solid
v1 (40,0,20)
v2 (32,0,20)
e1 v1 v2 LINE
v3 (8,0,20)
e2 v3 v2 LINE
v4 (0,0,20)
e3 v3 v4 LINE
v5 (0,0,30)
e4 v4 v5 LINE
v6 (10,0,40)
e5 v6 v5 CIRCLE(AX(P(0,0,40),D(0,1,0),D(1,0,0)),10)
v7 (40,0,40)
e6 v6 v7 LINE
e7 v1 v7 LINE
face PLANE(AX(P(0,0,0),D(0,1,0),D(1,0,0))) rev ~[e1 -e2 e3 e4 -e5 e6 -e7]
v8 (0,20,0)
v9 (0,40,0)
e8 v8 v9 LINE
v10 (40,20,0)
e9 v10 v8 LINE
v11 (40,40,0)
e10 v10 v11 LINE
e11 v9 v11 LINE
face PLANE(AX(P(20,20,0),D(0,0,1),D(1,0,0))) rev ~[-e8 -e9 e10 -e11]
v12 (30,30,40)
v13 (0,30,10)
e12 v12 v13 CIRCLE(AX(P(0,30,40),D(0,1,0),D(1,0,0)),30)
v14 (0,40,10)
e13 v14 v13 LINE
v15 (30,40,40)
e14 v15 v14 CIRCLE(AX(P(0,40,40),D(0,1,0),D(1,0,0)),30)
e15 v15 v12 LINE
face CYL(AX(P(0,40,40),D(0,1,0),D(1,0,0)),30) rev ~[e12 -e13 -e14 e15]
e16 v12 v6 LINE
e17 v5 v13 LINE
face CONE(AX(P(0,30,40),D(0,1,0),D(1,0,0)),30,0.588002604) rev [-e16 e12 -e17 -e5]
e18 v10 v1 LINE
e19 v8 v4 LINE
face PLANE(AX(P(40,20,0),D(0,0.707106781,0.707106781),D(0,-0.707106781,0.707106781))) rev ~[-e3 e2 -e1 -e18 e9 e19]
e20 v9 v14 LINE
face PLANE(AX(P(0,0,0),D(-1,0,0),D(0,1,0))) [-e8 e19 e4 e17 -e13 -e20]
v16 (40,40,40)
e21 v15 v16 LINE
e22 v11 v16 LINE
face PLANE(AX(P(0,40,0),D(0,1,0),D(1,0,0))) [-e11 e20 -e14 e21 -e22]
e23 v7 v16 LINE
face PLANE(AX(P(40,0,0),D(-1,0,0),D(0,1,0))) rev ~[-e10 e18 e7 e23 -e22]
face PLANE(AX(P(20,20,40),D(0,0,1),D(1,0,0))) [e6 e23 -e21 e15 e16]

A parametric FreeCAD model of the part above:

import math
import FreeCAD as App
import Part
import Sketcher

doc = App.newDocument("Part")
params = doc.addObject("Spreadsheet::Sheet", "Params")
for row, (alias, value) in enumerate([
    ("sketch1_width", "40 mm"),
    ("pad1_length", "40 mm"),
    ("sketch2_radius", "10 mm"),
    ("pocket1_length", "40 mm"),
    ("sketch3_width", "20 mm"),
    ("pocket2_length", "40 mm"),
    ("sketch4_radius", "10 mm"),
    ("sketch4_radius2", "30 mm"),
    ("pocket3_length", "10 mm"),
    ("pad2_length", "28 mm"),
    ("sketch6_radius", "30 mm"),
    ("pocket4_length", "10 mm"),
    ("sketch7_width", "40 mm"),
    ("sketch7_height", "20 mm"),
    ("pocket5_length", "10 mm"),
    ("sketch8_width", "40 mm"),
    ("pocket6_length", "10 mm"),
    ("sketch9_width", "6 mm"),
    ("pocket7_length", "10 mm"),
    ("sketch10_width", "40 mm"),
    ("pocket8_length", "10 mm"),
    ("sketch11_width", "40 mm"),
    ("pocket9_length", "10 mm"),
    ("pocket10_length", "59 mm"),
    ("sketch13_radius", "10 mm"),
    ("pocket11_length", "59 mm"),
    ("sketch14_width", "20 mm"),
    ("sketch14_height", "30 mm"),
    ("groove_angle", "360 deg"),
], start=1):
    params.set(f"A{row}", alias)
    params.set(f"B{row}", "=" + value)
    params.setAlias(f"B{row}", alias)

body = doc.addObject("PartDesign::Body", "Body")
body.AllowCompound = True

sketch1 = body.newObject("Sketcher::SketchObject", "Sketch")
sketch1.AttachmentSupport = (doc.getObject("XY_Plane"), [""])
sketch1.MapMode = "FlatFace"
sketch1.addGeometry(Part.LineSegment(App.Vector(0, 40, 0), App.Vector(0, 0, 0)), False)
sketch1.addGeometry(Part.LineSegment(App.Vector(0, 0, 0), App.Vector(40, 0, 0)), False)
sketch1.addGeometry(Part.LineSegment(App.Vector(40, 0, 0), App.Vector(40, 40, 0)), False)
sketch1.addGeometry(Part.LineSegment(App.Vector(40, 40, 0), App.Vector(0, 40, 0)), False)
sketch1.addConstraint(Sketcher.Constraint("Coincident", 0, 2, 1, 1))
sketch1.addConstraint(Sketcher.Constraint("Coincident", 1, 2, 2, 1))
sketch1.addConstraint(Sketcher.Constraint("Coincident", 2, 2, 3, 1))
sketch1.addConstraint(Sketcher.Constraint("Coincident", 3, 2, 0, 1))
sketch1.addConstraint(Sketcher.Constraint("Vertical", 0))
sketch1.addConstraint(Sketcher.Constraint("Horizontal", 1))
sketch1.addConstraint(Sketcher.Constraint("Vertical", 2))
sketch1.addConstraint(Sketcher.Constraint("Horizontal", 3))
sketch1.addConstraint(Sketcher.Constraint("Coincident", 0, 2, -1, 1))
sketch1.addConstraint(Sketcher.Constraint("Equal", 3, 0))
sketch1.addConstraint(Sketcher.Constraint("DistanceX", 1, 1, 1, 2, 40.0))
sketch1.setExpression("Constraints[10]", "Params.sketch1_width")
pad1 = body.newObject("PartDesign::Pad", "Pad")
pad1.Profile = sketch1
pad1.setExpression("Length", "Params.pad1_length")

sketch2 = body.newObject("Sketcher::SketchObject", "Sketch001")
sketch2.AttachmentSupport = (doc.getObject("XZ_Plane"), [""])
sketch2.MapMode = "FlatFace"
sketch2.AttachmentOffset = App.Placement(App.Vector(0, 0, -40), App.Rotation())
sketch2.addGeometry(Part.LineSegment(App.Vector(0, 30, 0), App.Vector(0, 40, 0)), False)
sketch2.addGeometry(Part.LineSegment(App.Vector(0, 40, 0), App.Vector(10, 40, 0)), False)
sketch2.addGeometry(Part.ArcOfCircle(Part.Circle(App.Vector(0, 40, 0), App.Vector(0, 0, 1), 10), math.radians(-90), math.radians(0)), False)
sketch2.addConstraint(Sketcher.Constraint("Coincident", 0, 2, 1, 1))
sketch2.addConstraint(Sketcher.Constraint("Coincident", 1, 2, 2, 2))
sketch2.addConstraint(Sketcher.Constraint("Coincident", 2, 1, 0, 1))
sketch2.addConstraint(Sketcher.Constraint("Vertical", 0))
sketch2.addConstraint(Sketcher.Constraint("Horizontal", 1))
sketch2.addConstraint(Sketcher.Constraint("Coincident", 0, 2, 2, 3))
sketch2.addConstraint(Sketcher.Constraint("PointOnObject", 2, 3, -2))
sketch2.addConstraint(Sketcher.Constraint("Radius", 2, 10.0))
sketch2.addConstraint(Sketcher.Constraint("DistanceY", -1, 1, 2, 3, 40.0))
sketch2.setExpression("Constraints[7]", "Params.sketch2_radius")
pocket1 = body.newObject("PartDesign::Pocket", "Pocket")
pocket1.Profile = sketch2
pocket1.setExpression("Length", "Params.pocket1_length")
pocket1.Reversed = True

sketch3 = body.newObject("Sketcher::SketchObject", "Sketch002")
sketch3.AttachmentSupport = (doc.getObject("YZ_Plane"), [""])
sketch3.MapMode = "FlatFace"
sketch3.AttachmentOffset = App.Placement(App.Vector(0, 0, 40), App.Rotation())
sketch3.addGeometry(Part.LineSegment(App.Vector(20, 0, 0), App.Vector(0, 20, 0)), False)
sketch3.addGeometry(Part.LineSegment(App.Vector(0, 20, 0), App.Vector(0, 0, 0)), False)
sketch3.addGeometry(Part.LineSegment(App.Vector(0, 0, 0), App.Vector(20, 0, 0)), False)
sketch3.addConstraint(Sketcher.Constraint("Coincident", 0, 2, 1, 1))
sketch3.addConstraint(Sketcher.Constraint("Coincident", 1, 2, 2, 1))
sketch3.addConstraint(Sketcher.Constraint("Coincident", 2, 2, 0, 1))
sketch3.addConstraint(Sketcher.Constraint("Vertical", 1))
sketch3.addConstraint(Sketcher.Constraint("Horizontal", 2))
sketch3.addConstraint(Sketcher.Constraint("Coincident", 1, 2, -1, 1))
sketch3.addConstraint(Sketcher.Constraint("Equal", 2, 1))
sketch3.addConstraint(Sketcher.Constraint("DistanceX", 2, 1, 2, 2, 20.0))
sketch3.setExpression("Constraints[7]", "Params.sketch3_width")
pocket2 = body.newObject("PartDesign::Pocket", "Pocket001")
pocket2.Profile = sketch3
pocket2.setExpression("Length", "Params.pocket2_length")

sketch4 = body.newObject("Sketcher::SketchObject", "Sketch003")
sketch4.AttachmentSupport = (doc.getObject("XZ_Plane"), [""])
sketch4.MapMode = "FlatFace"
sketch4.AttachmentOffset = App.Placement(App.Vector(0, 0, -40), App.Rotation())
sketch4.addGeometry(Part.LineSegment(App.Vector(0, 10, 0), App.Vector(0, 30, 0)), False)
sketch4.addGeometry(Part.ArcOfCircle(Part.Circle(App.Vector(0, 40, 0), App.Vector(0, 0, 1), 10), math.radians(-90), math.radians(0)), False)
sketch4.addGeometry(Part.LineSegment(App.Vector(10, 40, 0), App.Vector(30, 40, 0)), False)
sketch4.addGeometry(Part.ArcOfCircle(Part.Circle(App.Vector(0, 40, 0), App.Vector(0, 0, 1), 30), math.radians(-90), math.radians(0)), False)
sketch4.addConstraint(Sketcher.Constraint("Coincident", 0, 2, 1, 1))
sketch4.addConstraint(Sketcher.Constraint("Coincident", 1, 2, 2, 1))
sketch4.addConstraint(Sketcher.Constraint("Coincident", 2, 2, 3, 2))
sketch4.addConstraint(Sketcher.Constraint("Coincident", 3, 1, 0, 1))
sketch4.addConstraint(Sketcher.Constraint("Vertical", 0))
sketch4.addConstraint(Sketcher.Constraint("Horizontal", 2))
sketch4.addConstraint(Sketcher.Constraint("Coincident", 3, 3, 1, 3))
sketch4.addConstraint(Sketcher.Constraint("PointOnObject", 1, 3, -2))
sketch4.addConstraint(Sketcher.Constraint("PointOnObject", 0, 2, -2))
sketch4.addConstraint(Sketcher.Constraint("Horizontal", 3, 3, 1, 2))
sketch4.addConstraint(Sketcher.Constraint("Radius", 1, 10.0))
sketch4.addConstraint(Sketcher.Constraint("Radius", 3, 30.0))
sketch4.addConstraint(Sketcher.Constraint("DistanceY", -1, 1, 1, 3, 40.0))
sketch4.setExpression("Constraints[10]", "Params.sketch4_radius")
sketch4.setExpression("Constraints[11]", "Params.sketch4_radius2")
pocket3 = body.newObject("PartDesign::Pocket", "Pocket002")
pocket3.Profile = sketch4
pocket3.setExpression("Length", "Params.pocket3_length")
pocket3.Reversed = True

sketch5 = body.newObject("Sketcher::SketchObject", "Sketch004")
sketch5.Placement = App.Placement(App.Vector(-13.333333, 6.666667, 13.333333), App.Rotation(App.Vector(-0.745355992, -0.298142397, -0.596284794), App.Vector(0, 0.894427191, -0.447213595), App.Vector(0.666666667, -0.333333333, -0.666666667), "ZXY"))
sketch5.addGeometry(Part.LineSegment(App.Vector(-18, -13, 0), App.Vector(-18, 31, 0)), False)
sketch5.addGeometry(Part.LineSegment(App.Vector(-18, 31, 0), App.Vector(-58, 18, 0)), False)
sketch5.addGeometry(Part.LineSegment(App.Vector(-58, 18, 0), App.Vector(-31, -18, 0)), False)
sketch5.addGeometry(Part.LineSegment(App.Vector(-31, -18, 0), App.Vector(-18, -13, 0)), False)
sketch5.addConstraint(Sketcher.Constraint("Coincident", 0, 2, 1, 1))
sketch5.addConstraint(Sketcher.Constraint("Coincident", 1, 2, 2, 1))
sketch5.addConstraint(Sketcher.Constraint("Coincident", 2, 2, 3, 1))
sketch5.addConstraint(Sketcher.Constraint("Coincident", 3, 2, 0, 1))
sketch5.addConstraint(Sketcher.Constraint("Vertical", 0))
sketch5.addConstraint(Sketcher.Constraint("Parallel", 1, 3))
sketch5.addConstraint(Sketcher.Constraint("DistanceY", 0, 1, 0, 2, 44.72136))
sketch5.addConstraint(Sketcher.Constraint("Distance", 2, 44.72136))
sketch5.addConstraint(Sketcher.Constraint("DistanceY", -1, 1, 0, 2, 31.304952))
sketch5.addConstraint(Sketcher.Constraint("DistanceX", 2, 2, -1, 1, 31.304952))
sketch5.addConstraint(Sketcher.Constraint("DistanceY", 3, 2, 1, 2, 31.304952))
sketch5.addConstraint(Sketcher.Constraint("Distance", 1, 42.426407))
pad2 = body.newObject("PartDesign::Pad", "Pad001")
pad2.Profile = sketch5
pad2.setExpression("Length", "Params.pad2_length")

sketch6 = body.newObject("Sketcher::SketchObject", "Sketch005")
sketch6.AttachmentSupport = (doc.getObject("XZ_Plane"), [""])
sketch6.MapMode = "FlatFace"
sketch6.AttachmentOffset = App.Placement(App.Vector(0, 0, -40), App.Rotation())
sketch6.addGeometry(Part.LineSegment(App.Vector(0, 10, 0), App.Vector(0, 40, 0)), False)
sketch6.addGeometry(Part.LineSegment(App.Vector(0, 40, 0), App.Vector(30, 40, 0)), False)
sketch6.addGeometry(Part.ArcOfCircle(Part.Circle(App.Vector(0, 40, 0), App.Vector(0, 0, 1), 30), math.radians(-90), math.radians(0)), False)
sketch6.addConstraint(Sketcher.Constraint("Coincident", 0, 2, 1, 1))
sketch6.addConstraint(Sketcher.Constraint("Coincident", 1, 2, 2, 2))
sketch6.addConstraint(Sketcher.Constraint("Coincident", 2, 1, 0, 1))
sketch6.addConstraint(Sketcher.Constraint("Vertical", 0))
sketch6.addConstraint(Sketcher.Constraint("Horizontal", 1))
sketch6.addConstraint(Sketcher.Constraint("Coincident", 0, 2, 2, 3))
sketch6.addConstraint(Sketcher.Constraint("PointOnObject", 2, 3, -2))
sketch6.addConstraint(Sketcher.Constraint("Radius", 2, 30.0))
sketch6.addConstraint(Sketcher.Constraint("DistanceY", -1, 1, 2, 3, 40.0))
sketch6.setExpression("Constraints[7]", "Params.sketch6_radius")
pocket4 = body.newObject("PartDesign::Pocket", "Pocket003")
pocket4.Profile = sketch6
pocket4.setExpression("Length", "Params.pocket4_length")
pocket4.Reversed = True

sketch7 = body.newObject("Sketcher::SketchObject", "Sketch006")
sketch7.AttachmentSupport = (doc.getObject("XY_Plane"), [""])
sketch7.MapMode = "FlatFace"
sketch7.addGeometry(Part.LineSegment(App.Vector(40, 40, 0), App.Vector(40, 20, 0)), False)
sketch7.addGeometry(Part.LineSegment(App.Vector(40, 20, 0), App.Vector(0, 20, 0)), False)
sketch7.addGeometry(Part.LineSegment(App.Vector(0, 20, 0), App.Vector(0, 40, 0)), False)
sketch7.addGeometry(Part.LineSegment(App.Vector(0, 40, 0), App.Vector(40, 40, 0)), False)
sketch7.addConstraint(Sketcher.Constraint("Coincident", 0, 2, 1, 1))
sketch7.addConstraint(Sketcher.Constraint("Coincident", 1, 2, 2, 1))
sketch7.addConstraint(Sketcher.Constraint("Coincident", 2, 2, 3, 1))
sketch7.addConstraint(Sketcher.Constraint("Coincident", 3, 2, 0, 1))
sketch7.addConstraint(Sketcher.Constraint("Vertical", 0))
sketch7.addConstraint(Sketcher.Constraint("Horizontal", 1))
sketch7.addConstraint(Sketcher.Constraint("Vertical", 2))
sketch7.addConstraint(Sketcher.Constraint("Horizontal", 3))
sketch7.addConstraint(Sketcher.Constraint("PointOnObject", 1, 2, -2))
sketch7.addConstraint(Sketcher.Constraint("DistanceX", 1, 2, 1, 1, 40.0))
sketch7.addConstraint(Sketcher.Constraint("DistanceY", 0, 2, 0, 1, 20.0))
sketch7.addConstraint(Sketcher.Constraint("DistanceY", -1, 1, 0, 2, 20.0))
sketch7.setExpression("Constraints[9]", "Params.sketch7_width")
sketch7.setExpression("Constraints[10]", "Params.sketch7_height")
pocket5 = body.newObject("PartDesign::Pocket", "Pocket004")
pocket5.Profile = sketch7
pocket5.setExpression("Length", "Params.pocket5_length")

sketch8 = body.newObject("Sketcher::SketchObject", "Sketch007")
sketch8.Placement = App.Placement(App.Vector(0, 10, 10), App.Rotation(App.Vector(1, 0, 0), App.Vector(0, -0.707106781, 0.707106781), App.Vector(0, -0.707106781, -0.707106781), "ZXY"))
sketch8.addGeometry(Part.LineSegment(App.Vector(0, 14, 0), App.Vector(0, -14, 0)), False)
sketch8.addGeometry(Part.LineSegment(App.Vector(0, -14, 0), App.Vector(40, -14, 0)), False)
sketch8.addGeometry(Part.LineSegment(App.Vector(40, -14, 0), App.Vector(40, 14, 0)), False)
sketch8.addGeometry(Part.LineSegment(App.Vector(40, 14, 0), App.Vector(0, 14, 0)), False)
sketch8.addConstraint(Sketcher.Constraint("Coincident", 0, 2, 1, 1))
sketch8.addConstraint(Sketcher.Constraint("Coincident", 1, 2, 2, 1))
sketch8.addConstraint(Sketcher.Constraint("Coincident", 2, 2, 3, 1))
sketch8.addConstraint(Sketcher.Constraint("Coincident", 3, 2, 0, 1))
sketch8.addConstraint(Sketcher.Constraint("Vertical", 0))
sketch8.addConstraint(Sketcher.Constraint("Horizontal", 1))
sketch8.addConstraint(Sketcher.Constraint("Vertical", 2))
sketch8.addConstraint(Sketcher.Constraint("Horizontal", 3))
sketch8.addConstraint(Sketcher.Constraint("Symmetric", 0, 2, 3, 2, -1, 1))
sketch8.addConstraint(Sketcher.Constraint("DistanceX", 1, 1, 1, 2, 40.0))
sketch8.addConstraint(Sketcher.Constraint("DistanceY", 0, 2, 0, 1, 28.284271))
sketch8.setExpression("Constraints[9]", "Params.sketch8_width")
pocket6 = body.newObject("PartDesign::Pocket", "Pocket005")
pocket6.Profile = sketch8
pocket6.setExpression("Length", "Params.pocket6_length")
pocket6.Reversed = True

sketch9 = body.newObject("Sketcher::SketchObject", "Sketch008")
sketch9.Placement = App.Placement(App.Vector(0, 10, -10), App.Rotation(App.Vector(1, 0, 0), App.Vector(0, 0.707106781, 0.707106781), App.Vector(0, -0.707106781, 0.707106781), "ZXY"))
sketch9.addGeometry(Part.LineSegment(App.Vector(22, 14.1, 0), App.Vector(16, 14.1, 0)), False)
sketch9.addGeometry(Part.LineSegment(App.Vector(16, 14.1, 0), App.Vector(18.7, 11, 0)), False)
sketch9.addGeometry(Part.LineSegment(App.Vector(18.7, 11, 0), App.Vector(22, 14.1, 0)), False)
sketch9.addConstraint(Sketcher.Constraint("Coincident", 0, 2, 1, 1))
sketch9.addConstraint(Sketcher.Constraint("Coincident", 1, 2, 2, 1))
sketch9.addConstraint(Sketcher.Constraint("Coincident", 2, 2, 0, 1))
sketch9.addConstraint(Sketcher.Constraint("Horizontal", 0))
sketch9.addConstraint(Sketcher.Constraint("DistanceX", 0, 2, 0, 1, 6.0))
sketch9.addConstraint(Sketcher.Constraint("DistanceX", -1, 1, 0, 2, 16.0))
sketch9.addConstraint(Sketcher.Constraint("Distance", 1, 4.121608))
sketch9.addConstraint(Sketcher.Constraint("Distance", 2, 4.581228))
sketch9.addConstraint(Sketcher.Constraint("DistanceY", -1, 1, 1, 2, 10.999439))
sketch9.setExpression("Constraints[4]", "Params.sketch9_width")
pocket7 = body.newObject("PartDesign::Pocket", "Pocket006")
pocket7.Profile = sketch9
pocket7.setExpression("Length", "Params.pocket7_length")

sketch10 = body.newObject("Sketcher::SketchObject", "Sketch009")
sketch10.AttachmentSupport = (doc.getObject("XZ_Plane"), [""])
sketch10.MapMode = "FlatFace"
sketch10.addGeometry(Part.LineSegment(App.Vector(0, 40, 0), App.Vector(0, 0, 0)), False)
sketch10.addGeometry(Part.LineSegment(App.Vector(0, 0, 0), App.Vector(40, 0, 0)), False)
sketch10.addGeometry(Part.LineSegment(App.Vector(40, 0, 0), App.Vector(40, 40, 0)), False)
sketch10.addGeometry(Part.LineSegment(App.Vector(40, 40, 0), App.Vector(0, 40, 0)), False)
sketch10.addConstraint(Sketcher.Constraint("Coincident", 0, 2, 1, 1))
sketch10.addConstraint(Sketcher.Constraint("Coincident", 1, 2, 2, 1))
sketch10.addConstraint(Sketcher.Constraint("Coincident", 2, 2, 3, 1))
sketch10.addConstraint(Sketcher.Constraint("Coincident", 3, 2, 0, 1))
sketch10.addConstraint(Sketcher.Constraint("Vertical", 0))
sketch10.addConstraint(Sketcher.Constraint("Horizontal", 1))
sketch10.addConstraint(Sketcher.Constraint("Vertical", 2))
sketch10.addConstraint(Sketcher.Constraint("Horizontal", 3))
sketch10.addConstraint(Sketcher.Constraint("Coincident", 0, 2, -1, 1))
sketch10.addConstraint(Sketcher.Constraint("Equal", 3, 0))
sketch10.addConstraint(Sketcher.Constraint("DistanceX", 1, 1, 1, 2, 40.0))
sketch10.setExpression("Constraints[10]", "Params.sketch10_width")
pocket8 = body.newObject("PartDesign::Pocket", "Pocket007")
pocket8.Profile = sketch10
pocket8.setExpression("Length", "Params.pocket8_length")
pocket8.Reversed = True

sketch11 = body.newObject("Sketcher::SketchObject", "Sketch010")
sketch11.AttachmentSupport = (doc.getObject("YZ_Plane"), [""])
sketch11.MapMode = "FlatFace"
sketch11.AttachmentOffset = App.Placement(App.Vector(0, 0, 40), App.Rotation())
sketch11.addGeometry(Part.LineSegment(App.Vector(40, 40, 0), App.Vector(0, 40, 0)), False)
sketch11.addGeometry(Part.LineSegment(App.Vector(0, 40, 0), App.Vector(0, 0, 0)), False)
sketch11.addGeometry(Part.LineSegment(App.Vector(0, 0, 0), App.Vector(40, 0, 0)), False)
sketch11.addGeometry(Part.LineSegment(App.Vector(40, 0, 0), App.Vector(40, 40, 0)), False)
sketch11.addConstraint(Sketcher.Constraint("Coincident", 0, 2, 1, 1))
sketch11.addConstraint(Sketcher.Constraint("Coincident", 1, 2, 2, 1))
sketch11.addConstraint(Sketcher.Constraint("Coincident", 2, 2, 3, 1))
sketch11.addConstraint(Sketcher.Constraint("Coincident", 3, 2, 0, 1))
sketch11.addConstraint(Sketcher.Constraint("Horizontal", 0))
sketch11.addConstraint(Sketcher.Constraint("Vertical", 1))
sketch11.addConstraint(Sketcher.Constraint("Horizontal", 2))
sketch11.addConstraint(Sketcher.Constraint("Vertical", 3))
sketch11.addConstraint(Sketcher.Constraint("Coincident", 1, 2, -1, 1))
sketch11.addConstraint(Sketcher.Constraint("Equal", 2, 1))
sketch11.addConstraint(Sketcher.Constraint("DistanceX", 0, 2, 0, 1, 40.0))
sketch11.setExpression("Constraints[10]", "Params.sketch11_width")
pocket9 = body.newObject("PartDesign::Pocket", "Pocket008")
pocket9.Profile = sketch11
pocket9.setExpression("Length", "Params.pocket9_length")
pocket9.Reversed = True

sketch12 = body.newObject("Sketcher::SketchObject", "Sketch011")
sketch12.Placement = App.Placement(App.Vector(-12.272727, 8.181818, 12.272727), App.Rotation(App.Vector(0.768706115, 0.354787438, 0.532181156), App.Vector(0, 0.832050294, -0.554700197), App.Vector(-0.639602149, 0.426401433, 0.639602149), "ZXY"))
sketch12.addGeometry(Part.LineSegment(App.Vector(16, 19, 0), App.Vector(16, -17, 0)), False)
sketch12.addGeometry(Part.LineSegment(App.Vector(16, -17, 0), App.Vector(29, -22, 0)), False)
sketch12.addGeometry(Part.LineSegment(App.Vector(29, -22, 0), App.Vector(55, 3, 0)), False)
sketch12.addGeometry(Part.LineSegment(App.Vector(55, 3, 0), App.Vector(16, 19, 0)), False)
sketch12.addConstraint(Sketcher.Constraint("Coincident", 0, 2, 1, 1))
sketch12.addConstraint(Sketcher.Constraint("Coincident", 1, 2, 2, 1))
sketch12.addConstraint(Sketcher.Constraint("Coincident", 2, 2, 3, 1))
sketch12.addConstraint(Sketcher.Constraint("Coincident", 3, 2, 0, 1))
sketch12.addConstraint(Sketcher.Constraint("Vertical", 0))
sketch12.addConstraint(Sketcher.Constraint("Parallel", 1, 3))
sketch12.addConstraint(Sketcher.Constraint("DistanceY", 1, 2, 0, 2, 5.547002))
sketch12.addConstraint(Sketcher.Constraint("DistanceY", -1, 1, 2, 2, 2.773501))
sketch12.addConstraint(Sketcher.Constraint("DistanceY", 0, 2, 0, 1, 36.055513))
sketch12.addConstraint(Sketcher.Constraint("DistanceY", 1, 2, 2, 2, 24.961509))
sketch12.addConstraint(Sketcher.Constraint("DistanceX", 0, 2, 2, 2, 39.026618))
sketch12.addConstraint(Sketcher.Constraint("DistanceX", -1, 1, 0, 2, 15.965435))
pocket10 = body.newObject("PartDesign::Pocket", "Pocket009")
pocket10.Profile = sketch12
pocket10.setExpression("Length", "Params.pocket10_length")
pocket10.Reversed = True

sketch13 = body.newObject("Sketcher::SketchObject", "Sketch012")
sketch13.AttachmentSupport = (doc.getObject("XZ_Plane"), [""])
sketch13.MapMode = "FlatFace"
sketch13.AttachmentOffset = App.Placement(App.Vector(0, 0, -30), App.Rotation())
sketch13.addGeometry(Part.LineSegment(App.Vector(0, 30, 0), App.Vector(0, 40, 0)), False)
sketch13.addGeometry(Part.LineSegment(App.Vector(0, 40, 0), App.Vector(10, 40, 0)), False)
sketch13.addGeometry(Part.ArcOfCircle(Part.Circle(App.Vector(0, 40, 0), App.Vector(0, 0, 1), 10), math.radians(-90), math.radians(0)), False)
sketch13.addConstraint(Sketcher.Constraint("Coincident", 0, 2, 1, 1))
sketch13.addConstraint(Sketcher.Constraint("Coincident", 1, 2, 2, 2))
sketch13.addConstraint(Sketcher.Constraint("Coincident", 2, 1, 0, 1))
sketch13.addConstraint(Sketcher.Constraint("Vertical", 0))
sketch13.addConstraint(Sketcher.Constraint("Horizontal", 1))
sketch13.addConstraint(Sketcher.Constraint("Coincident", 0, 2, 2, 3))
sketch13.addConstraint(Sketcher.Constraint("PointOnObject", 2, 3, -2))
sketch13.addConstraint(Sketcher.Constraint("Radius", 2, 10.0))
sketch13.addConstraint(Sketcher.Constraint("DistanceY", -1, 1, 2, 3, 40.0))
sketch13.setExpression("Constraints[7]", "Params.sketch13_radius")
pocket11 = body.newObject("PartDesign::Pocket", "Pocket010")
pocket11.Profile = sketch13
pocket11.setExpression("Length", "Params.pocket11_length")
pocket11.Reversed = True

sketch14 = body.newObject("Sketcher::SketchObject", "Sketch013")
sketch14.AttachmentSupport = (doc.getObject("XY_Plane"), [""])
sketch14.MapMode = "FlatFace"
sketch14.AttachmentOffset = App.Placement(App.Vector(0, 0, 40), App.Rotation())
sketch14.addGeometry(Part.LineSegment(App.Vector(10, 0, 0), App.Vector(30, 30, 0)), False)
sketch14.addGeometry(Part.LineSegment(App.Vector(30, 30, 0), App.Vector(10, 30, 0)), False)
sketch14.addGeometry(Part.LineSegment(App.Vector(10, 30, 0), App.Vector(10, 0, 0)), False)
sketch14.addConstraint(Sketcher.Constraint("Coincident", 0, 2, 1, 1))
sketch14.addConstraint(Sketcher.Constraint("Coincident", 1, 2, 2, 1))
sketch14.addConstraint(Sketcher.Constraint("Coincident", 2, 2, 0, 1))
sketch14.addConstraint(Sketcher.Constraint("Horizontal", 1))
sketch14.addConstraint(Sketcher.Constraint("Vertical", 2))
sketch14.addConstraint(Sketcher.Constraint("PointOnObject", 2, 2, -1))
sketch14.addConstraint(Sketcher.Constraint("DistanceX", 1, 2, 1, 1, 20.0))
sketch14.addConstraint(Sketcher.Constraint("DistanceY", 2, 2, 2, 1, 30.0))
sketch14.addConstraint(Sketcher.Constraint("DistanceX", -1, 1, 0, 2, 30.0))
sketch14.setExpression("Constraints[6]", "Params.sketch14_width")
sketch14.setExpression("Constraints[7]", "Params.sketch14_height")
groove = body.newObject("PartDesign::Groove", "Groove")
groove.Profile = sketch14
groove.ReferenceAxis = (sketch14, ["V_Axis"])
groove.setExpression("Angle", "Params.groove_angle")

doc.recompute()
